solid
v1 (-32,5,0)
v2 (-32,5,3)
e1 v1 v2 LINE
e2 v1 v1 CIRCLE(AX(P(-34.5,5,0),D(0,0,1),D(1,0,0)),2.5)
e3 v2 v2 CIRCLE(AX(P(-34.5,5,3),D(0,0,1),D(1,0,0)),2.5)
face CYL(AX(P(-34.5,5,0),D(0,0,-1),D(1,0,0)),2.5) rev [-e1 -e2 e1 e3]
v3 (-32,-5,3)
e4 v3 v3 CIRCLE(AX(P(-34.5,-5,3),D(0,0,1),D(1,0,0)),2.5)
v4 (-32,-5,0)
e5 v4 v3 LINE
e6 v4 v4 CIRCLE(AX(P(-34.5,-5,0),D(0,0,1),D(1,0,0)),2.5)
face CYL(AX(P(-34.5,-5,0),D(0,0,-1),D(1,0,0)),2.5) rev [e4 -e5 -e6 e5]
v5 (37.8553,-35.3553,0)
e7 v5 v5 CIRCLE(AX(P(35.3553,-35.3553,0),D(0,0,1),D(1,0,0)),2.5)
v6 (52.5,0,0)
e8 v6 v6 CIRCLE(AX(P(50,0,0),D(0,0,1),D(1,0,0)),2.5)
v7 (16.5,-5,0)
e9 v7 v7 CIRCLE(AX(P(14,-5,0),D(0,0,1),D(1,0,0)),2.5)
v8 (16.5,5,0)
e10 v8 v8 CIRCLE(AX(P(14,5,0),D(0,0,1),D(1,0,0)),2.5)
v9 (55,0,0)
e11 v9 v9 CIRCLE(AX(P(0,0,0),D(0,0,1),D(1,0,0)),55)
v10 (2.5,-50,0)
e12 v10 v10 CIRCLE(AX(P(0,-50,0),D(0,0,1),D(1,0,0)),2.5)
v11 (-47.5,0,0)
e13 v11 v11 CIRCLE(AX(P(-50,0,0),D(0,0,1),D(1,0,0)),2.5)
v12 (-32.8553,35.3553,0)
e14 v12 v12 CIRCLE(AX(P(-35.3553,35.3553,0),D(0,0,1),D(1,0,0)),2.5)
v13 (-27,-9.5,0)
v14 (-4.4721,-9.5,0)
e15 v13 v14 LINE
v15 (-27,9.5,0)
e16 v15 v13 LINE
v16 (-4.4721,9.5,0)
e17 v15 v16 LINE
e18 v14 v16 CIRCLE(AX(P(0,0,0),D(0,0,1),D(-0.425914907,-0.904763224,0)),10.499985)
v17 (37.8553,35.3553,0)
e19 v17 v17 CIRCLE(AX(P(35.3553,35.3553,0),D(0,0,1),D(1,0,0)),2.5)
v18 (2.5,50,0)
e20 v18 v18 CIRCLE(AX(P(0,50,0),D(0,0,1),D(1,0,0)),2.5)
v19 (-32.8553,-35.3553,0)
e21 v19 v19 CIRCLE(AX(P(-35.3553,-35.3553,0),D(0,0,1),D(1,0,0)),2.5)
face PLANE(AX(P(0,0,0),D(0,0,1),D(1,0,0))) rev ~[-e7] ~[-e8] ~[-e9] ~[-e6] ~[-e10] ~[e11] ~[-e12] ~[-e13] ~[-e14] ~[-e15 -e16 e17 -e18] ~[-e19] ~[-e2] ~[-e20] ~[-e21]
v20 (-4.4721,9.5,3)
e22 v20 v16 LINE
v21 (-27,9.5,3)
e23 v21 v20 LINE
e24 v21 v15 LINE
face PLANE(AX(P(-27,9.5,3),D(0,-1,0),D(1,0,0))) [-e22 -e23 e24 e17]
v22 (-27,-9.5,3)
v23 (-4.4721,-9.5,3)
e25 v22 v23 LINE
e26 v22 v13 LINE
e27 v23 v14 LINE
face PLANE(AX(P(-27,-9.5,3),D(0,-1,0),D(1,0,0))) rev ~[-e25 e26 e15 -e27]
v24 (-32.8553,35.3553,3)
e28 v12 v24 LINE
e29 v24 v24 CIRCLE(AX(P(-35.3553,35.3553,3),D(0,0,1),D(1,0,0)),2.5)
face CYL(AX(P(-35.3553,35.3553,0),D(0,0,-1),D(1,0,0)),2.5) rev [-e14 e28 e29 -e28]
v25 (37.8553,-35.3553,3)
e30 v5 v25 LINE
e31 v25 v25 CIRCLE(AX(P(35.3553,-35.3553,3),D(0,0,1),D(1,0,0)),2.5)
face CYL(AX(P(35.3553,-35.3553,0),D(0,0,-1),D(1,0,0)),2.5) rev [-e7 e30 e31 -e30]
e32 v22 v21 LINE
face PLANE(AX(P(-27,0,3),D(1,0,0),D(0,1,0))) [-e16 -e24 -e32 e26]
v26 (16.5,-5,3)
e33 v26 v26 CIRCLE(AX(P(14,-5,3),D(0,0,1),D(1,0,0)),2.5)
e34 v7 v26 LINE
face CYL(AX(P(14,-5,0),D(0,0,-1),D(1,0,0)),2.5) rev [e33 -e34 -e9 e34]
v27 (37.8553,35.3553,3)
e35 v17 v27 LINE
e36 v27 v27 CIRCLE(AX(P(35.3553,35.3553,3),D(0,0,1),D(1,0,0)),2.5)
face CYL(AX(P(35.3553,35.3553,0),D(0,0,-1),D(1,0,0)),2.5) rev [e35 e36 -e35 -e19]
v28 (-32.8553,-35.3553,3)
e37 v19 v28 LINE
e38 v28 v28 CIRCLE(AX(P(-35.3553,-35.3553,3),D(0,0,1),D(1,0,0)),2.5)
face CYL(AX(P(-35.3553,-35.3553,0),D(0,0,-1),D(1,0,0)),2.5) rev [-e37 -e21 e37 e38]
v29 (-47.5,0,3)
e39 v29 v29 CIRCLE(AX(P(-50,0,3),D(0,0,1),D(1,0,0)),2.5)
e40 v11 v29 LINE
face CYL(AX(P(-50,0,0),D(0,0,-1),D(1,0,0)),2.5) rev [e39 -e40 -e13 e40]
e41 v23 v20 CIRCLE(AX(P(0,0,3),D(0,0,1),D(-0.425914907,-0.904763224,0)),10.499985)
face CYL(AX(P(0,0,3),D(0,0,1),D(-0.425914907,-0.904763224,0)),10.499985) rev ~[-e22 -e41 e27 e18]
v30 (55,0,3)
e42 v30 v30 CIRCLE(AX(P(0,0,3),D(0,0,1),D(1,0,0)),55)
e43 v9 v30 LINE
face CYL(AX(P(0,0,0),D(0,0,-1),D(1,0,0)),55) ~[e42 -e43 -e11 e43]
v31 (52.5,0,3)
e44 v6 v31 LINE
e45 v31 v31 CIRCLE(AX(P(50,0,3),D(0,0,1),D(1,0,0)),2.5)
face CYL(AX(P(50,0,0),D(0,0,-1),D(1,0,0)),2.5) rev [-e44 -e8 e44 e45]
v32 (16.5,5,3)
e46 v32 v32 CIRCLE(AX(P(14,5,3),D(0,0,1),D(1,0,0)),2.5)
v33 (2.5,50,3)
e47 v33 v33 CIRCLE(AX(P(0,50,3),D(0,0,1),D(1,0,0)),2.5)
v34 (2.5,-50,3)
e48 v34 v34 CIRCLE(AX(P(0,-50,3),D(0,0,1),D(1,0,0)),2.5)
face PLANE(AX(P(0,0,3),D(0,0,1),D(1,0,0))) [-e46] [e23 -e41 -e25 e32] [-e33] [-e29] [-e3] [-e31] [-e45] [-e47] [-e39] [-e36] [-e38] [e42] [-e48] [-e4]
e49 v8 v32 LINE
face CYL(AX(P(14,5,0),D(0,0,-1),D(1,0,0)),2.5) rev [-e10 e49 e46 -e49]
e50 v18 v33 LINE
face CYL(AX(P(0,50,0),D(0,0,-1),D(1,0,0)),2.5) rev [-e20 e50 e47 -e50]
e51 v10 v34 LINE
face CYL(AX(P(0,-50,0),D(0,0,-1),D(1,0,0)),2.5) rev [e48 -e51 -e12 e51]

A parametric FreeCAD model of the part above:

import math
import FreeCAD as App
import Part
import Sketcher
Q = App.Units.Quantity

doc = App.newDocument("Part")
body = doc.addObject("PartDesign::Body", "Body")

sketch1 = body.newObject("Sketcher::SketchObject", "Sketch")
sketch1.AttachmentSupport = (doc.getObject("XY_Plane"), [""])
sketch1.MapMode = "FlatFace"
sketch1.addGeometry([
    Part.Circle(App.Vector(0, 0, 0), App.Vector(0, 0, 1), 55),
    Part.Circle(App.Vector(-35.4, -35.4, 0), App.Vector(0, 0, 1), 2.5),
    Part.Circle(App.Vector(-34.5, -5, 0), App.Vector(0, 0, 1), 2.5),
    Part.Circle(App.Vector(0, -50, 0), App.Vector(0, 0, 1), 2.5),
    Part.Circle(App.Vector(35.4, -35.4, 0), App.Vector(0, 0, 1), 2.5),
    Part.Circle(App.Vector(14, -5, 0), App.Vector(0, 0, 1), 2.5),
    Part.Circle(App.Vector(-50, 0, 0), App.Vector(0, 0, 1), 2.5),
    Part.Circle(App.Vector(-34.5, 5, 0), App.Vector(0, 0, 1), 2.5),
    Part.Circle(App.Vector(-35.4, 35.4, 0), App.Vector(0, 0, 1), 2.5),
    Part.Circle(App.Vector(0, 0, 0), App.Vector(0, 0, 1), 6.5),
    Part.Circle(App.Vector(14, 5, 0), App.Vector(0, 0, 1), 2.5),
    Part.Circle(App.Vector(50, 0, 0), App.Vector(0, 0, 1), 2.5),
    Part.Circle(App.Vector(0, 50, 0), App.Vector(0, 0, 1), 2.5),
    Part.Circle(App.Vector(35.4, 35.4, 0), App.Vector(0, 0, 1), 2.5),
], False)
sketch1.addConstraint([
    Sketcher.Constraint("Coincident", 0, 3, -1, 1),
    Sketcher.Constraint("Coincident", 9, 3, -1, 1),
    Sketcher.Constraint("Equal", 1, 2),
    Sketcher.Constraint("Equal", 2, 3),
    Sketcher.Constraint("Equal", 3, 4),
    Sketcher.Constraint("Equal", 4, 5),
    Sketcher.Constraint("Equal", 5, 6),
    Sketcher.Constraint("Equal", 6, 7),
    Sketcher.Constraint("Equal", 7, 8),
    Sketcher.Constraint("Equal", 8, 10),
    Sketcher.Constraint("Equal", 10, 11),
    Sketcher.Constraint("Equal", 11, 12),
    Sketcher.Constraint("Equal", 12, 13),
    Sketcher.Constraint("Symmetric", 4, 3, 8, 3, -1, 1),
    Sketcher.Constraint("Symmetric", 6, 3, 11, 3, -1, 1),
    Sketcher.Constraint("Symmetric", 3, 3, 12, 3, -1, 1),
    Sketcher.Constraint("Symmetric", 1, 3, 13, 3, -1, 1),
    Sketcher.Constraint("Symmetric", 1, 3, 4, 3, -2),
    Sketcher.Constraint("Symmetric", 2, 3, 7, 3, -1),
    Sketcher.Constraint("Symmetric", 5, 3, 10, 3, -1),
    Sketcher.Constraint("PointOnObject", 3, 3, -2),
    Sketcher.Constraint("PointOnObject", 6, 3, -1),
    Sketcher.Constraint("Horizontal", 2, 3, 5, 3),
    Sketcher.Constraint("Diameter", 0, Q("110 mm")),
    Sketcher.Constraint("Diameter", 1, Q("5 mm")),
    Sketcher.Constraint("Diameter", 9, Q("13 mm")),
    Sketcher.Constraint("DistanceY", 2, 3, -1, 1, Q("5 mm")),
    Sketcher.Constraint("DistanceY", 3, 3, -1, 1, Q("50 mm")),
    Sketcher.Constraint("DistanceX", -1, 1, 5, 3, Q("14 mm")),
    Sketcher.Constraint("DistanceX", 6, 3, -1, 1, Q("50 mm")),
    Sketcher.Constraint("DistanceX", 2, 3, -1, 1, Q("34.5 mm")),
    Sketcher.Constraint("DistanceX", 1, 3, -1, 1, Q("35.3553 mm")),
    Sketcher.Constraint("DistanceY", 1, 3, -1, 1, Q("35.3553 mm")),
])
pad1 = body.newObject("PartDesign::Pad", "Pad")
pad1.Profile = sketch1
pad1.Length = 3

sketch2 = body.newObject("Sketcher::SketchObject", "Sketch001")
sketch2.AttachmentSupport = (doc.getObject("XY_Plane"), [""])
sketch2.MapMode = "FlatFace"
sketch2.AttachmentOffset = App.Placement(App.Vector(0, 0, 3), App.Rotation())
sketch2.addGeometry([
    Part.LineSegment(App.Vector(-27, -10, 0), App.Vector(-4, -10, 0)),
    Part.ArcOfCircle(Part.Circle(App.Vector(0, 0, 0), App.Vector(0, 0, 1), 10), math.radians(-115), math.radians(115)),
    Part.LineSegment(App.Vector(-4, 10, 0), App.Vector(-27, 10, 0)),
    Part.LineSegment(App.Vector(-27, 10, 0), App.Vector(-27, -10, 0)),
], False)
sketch2.addConstraint([
    Sketcher.Constraint("Coincident", 0, 2, 1, 1),
    Sketcher.Constraint("Coincident", 1, 2, 2, 1),
    Sketcher.Constraint("Coincident", 2, 2, 3, 1),
    Sketcher.Constraint("Coincident", 3, 2, 0, 1),
    Sketcher.Constraint("Horizontal", 0),
    Sketcher.Constraint("Horizontal", 2),
    Sketcher.Constraint("Vertical", 3),
    Sketcher.Constraint("Coincident", 1, 3, -1, 1),
    Sketcher.Constraint("Vertical", 0, 2, 1, 2),
    Sketcher.Constraint("Radius", 1, Q("10.5 mm")),
    Sketcher.Constraint("DistanceY", 3, 2, 3, 1, Q("19 mm")),
    Sketcher.Constraint("DistanceX", 2, 2, -1, 1, Q("27 mm")),
])
pocket1 = body.newObject("PartDesign::Pocket", "Pocket")
pocket1.Profile = sketch2
pocket1.Length = 3

doc.recompute()
